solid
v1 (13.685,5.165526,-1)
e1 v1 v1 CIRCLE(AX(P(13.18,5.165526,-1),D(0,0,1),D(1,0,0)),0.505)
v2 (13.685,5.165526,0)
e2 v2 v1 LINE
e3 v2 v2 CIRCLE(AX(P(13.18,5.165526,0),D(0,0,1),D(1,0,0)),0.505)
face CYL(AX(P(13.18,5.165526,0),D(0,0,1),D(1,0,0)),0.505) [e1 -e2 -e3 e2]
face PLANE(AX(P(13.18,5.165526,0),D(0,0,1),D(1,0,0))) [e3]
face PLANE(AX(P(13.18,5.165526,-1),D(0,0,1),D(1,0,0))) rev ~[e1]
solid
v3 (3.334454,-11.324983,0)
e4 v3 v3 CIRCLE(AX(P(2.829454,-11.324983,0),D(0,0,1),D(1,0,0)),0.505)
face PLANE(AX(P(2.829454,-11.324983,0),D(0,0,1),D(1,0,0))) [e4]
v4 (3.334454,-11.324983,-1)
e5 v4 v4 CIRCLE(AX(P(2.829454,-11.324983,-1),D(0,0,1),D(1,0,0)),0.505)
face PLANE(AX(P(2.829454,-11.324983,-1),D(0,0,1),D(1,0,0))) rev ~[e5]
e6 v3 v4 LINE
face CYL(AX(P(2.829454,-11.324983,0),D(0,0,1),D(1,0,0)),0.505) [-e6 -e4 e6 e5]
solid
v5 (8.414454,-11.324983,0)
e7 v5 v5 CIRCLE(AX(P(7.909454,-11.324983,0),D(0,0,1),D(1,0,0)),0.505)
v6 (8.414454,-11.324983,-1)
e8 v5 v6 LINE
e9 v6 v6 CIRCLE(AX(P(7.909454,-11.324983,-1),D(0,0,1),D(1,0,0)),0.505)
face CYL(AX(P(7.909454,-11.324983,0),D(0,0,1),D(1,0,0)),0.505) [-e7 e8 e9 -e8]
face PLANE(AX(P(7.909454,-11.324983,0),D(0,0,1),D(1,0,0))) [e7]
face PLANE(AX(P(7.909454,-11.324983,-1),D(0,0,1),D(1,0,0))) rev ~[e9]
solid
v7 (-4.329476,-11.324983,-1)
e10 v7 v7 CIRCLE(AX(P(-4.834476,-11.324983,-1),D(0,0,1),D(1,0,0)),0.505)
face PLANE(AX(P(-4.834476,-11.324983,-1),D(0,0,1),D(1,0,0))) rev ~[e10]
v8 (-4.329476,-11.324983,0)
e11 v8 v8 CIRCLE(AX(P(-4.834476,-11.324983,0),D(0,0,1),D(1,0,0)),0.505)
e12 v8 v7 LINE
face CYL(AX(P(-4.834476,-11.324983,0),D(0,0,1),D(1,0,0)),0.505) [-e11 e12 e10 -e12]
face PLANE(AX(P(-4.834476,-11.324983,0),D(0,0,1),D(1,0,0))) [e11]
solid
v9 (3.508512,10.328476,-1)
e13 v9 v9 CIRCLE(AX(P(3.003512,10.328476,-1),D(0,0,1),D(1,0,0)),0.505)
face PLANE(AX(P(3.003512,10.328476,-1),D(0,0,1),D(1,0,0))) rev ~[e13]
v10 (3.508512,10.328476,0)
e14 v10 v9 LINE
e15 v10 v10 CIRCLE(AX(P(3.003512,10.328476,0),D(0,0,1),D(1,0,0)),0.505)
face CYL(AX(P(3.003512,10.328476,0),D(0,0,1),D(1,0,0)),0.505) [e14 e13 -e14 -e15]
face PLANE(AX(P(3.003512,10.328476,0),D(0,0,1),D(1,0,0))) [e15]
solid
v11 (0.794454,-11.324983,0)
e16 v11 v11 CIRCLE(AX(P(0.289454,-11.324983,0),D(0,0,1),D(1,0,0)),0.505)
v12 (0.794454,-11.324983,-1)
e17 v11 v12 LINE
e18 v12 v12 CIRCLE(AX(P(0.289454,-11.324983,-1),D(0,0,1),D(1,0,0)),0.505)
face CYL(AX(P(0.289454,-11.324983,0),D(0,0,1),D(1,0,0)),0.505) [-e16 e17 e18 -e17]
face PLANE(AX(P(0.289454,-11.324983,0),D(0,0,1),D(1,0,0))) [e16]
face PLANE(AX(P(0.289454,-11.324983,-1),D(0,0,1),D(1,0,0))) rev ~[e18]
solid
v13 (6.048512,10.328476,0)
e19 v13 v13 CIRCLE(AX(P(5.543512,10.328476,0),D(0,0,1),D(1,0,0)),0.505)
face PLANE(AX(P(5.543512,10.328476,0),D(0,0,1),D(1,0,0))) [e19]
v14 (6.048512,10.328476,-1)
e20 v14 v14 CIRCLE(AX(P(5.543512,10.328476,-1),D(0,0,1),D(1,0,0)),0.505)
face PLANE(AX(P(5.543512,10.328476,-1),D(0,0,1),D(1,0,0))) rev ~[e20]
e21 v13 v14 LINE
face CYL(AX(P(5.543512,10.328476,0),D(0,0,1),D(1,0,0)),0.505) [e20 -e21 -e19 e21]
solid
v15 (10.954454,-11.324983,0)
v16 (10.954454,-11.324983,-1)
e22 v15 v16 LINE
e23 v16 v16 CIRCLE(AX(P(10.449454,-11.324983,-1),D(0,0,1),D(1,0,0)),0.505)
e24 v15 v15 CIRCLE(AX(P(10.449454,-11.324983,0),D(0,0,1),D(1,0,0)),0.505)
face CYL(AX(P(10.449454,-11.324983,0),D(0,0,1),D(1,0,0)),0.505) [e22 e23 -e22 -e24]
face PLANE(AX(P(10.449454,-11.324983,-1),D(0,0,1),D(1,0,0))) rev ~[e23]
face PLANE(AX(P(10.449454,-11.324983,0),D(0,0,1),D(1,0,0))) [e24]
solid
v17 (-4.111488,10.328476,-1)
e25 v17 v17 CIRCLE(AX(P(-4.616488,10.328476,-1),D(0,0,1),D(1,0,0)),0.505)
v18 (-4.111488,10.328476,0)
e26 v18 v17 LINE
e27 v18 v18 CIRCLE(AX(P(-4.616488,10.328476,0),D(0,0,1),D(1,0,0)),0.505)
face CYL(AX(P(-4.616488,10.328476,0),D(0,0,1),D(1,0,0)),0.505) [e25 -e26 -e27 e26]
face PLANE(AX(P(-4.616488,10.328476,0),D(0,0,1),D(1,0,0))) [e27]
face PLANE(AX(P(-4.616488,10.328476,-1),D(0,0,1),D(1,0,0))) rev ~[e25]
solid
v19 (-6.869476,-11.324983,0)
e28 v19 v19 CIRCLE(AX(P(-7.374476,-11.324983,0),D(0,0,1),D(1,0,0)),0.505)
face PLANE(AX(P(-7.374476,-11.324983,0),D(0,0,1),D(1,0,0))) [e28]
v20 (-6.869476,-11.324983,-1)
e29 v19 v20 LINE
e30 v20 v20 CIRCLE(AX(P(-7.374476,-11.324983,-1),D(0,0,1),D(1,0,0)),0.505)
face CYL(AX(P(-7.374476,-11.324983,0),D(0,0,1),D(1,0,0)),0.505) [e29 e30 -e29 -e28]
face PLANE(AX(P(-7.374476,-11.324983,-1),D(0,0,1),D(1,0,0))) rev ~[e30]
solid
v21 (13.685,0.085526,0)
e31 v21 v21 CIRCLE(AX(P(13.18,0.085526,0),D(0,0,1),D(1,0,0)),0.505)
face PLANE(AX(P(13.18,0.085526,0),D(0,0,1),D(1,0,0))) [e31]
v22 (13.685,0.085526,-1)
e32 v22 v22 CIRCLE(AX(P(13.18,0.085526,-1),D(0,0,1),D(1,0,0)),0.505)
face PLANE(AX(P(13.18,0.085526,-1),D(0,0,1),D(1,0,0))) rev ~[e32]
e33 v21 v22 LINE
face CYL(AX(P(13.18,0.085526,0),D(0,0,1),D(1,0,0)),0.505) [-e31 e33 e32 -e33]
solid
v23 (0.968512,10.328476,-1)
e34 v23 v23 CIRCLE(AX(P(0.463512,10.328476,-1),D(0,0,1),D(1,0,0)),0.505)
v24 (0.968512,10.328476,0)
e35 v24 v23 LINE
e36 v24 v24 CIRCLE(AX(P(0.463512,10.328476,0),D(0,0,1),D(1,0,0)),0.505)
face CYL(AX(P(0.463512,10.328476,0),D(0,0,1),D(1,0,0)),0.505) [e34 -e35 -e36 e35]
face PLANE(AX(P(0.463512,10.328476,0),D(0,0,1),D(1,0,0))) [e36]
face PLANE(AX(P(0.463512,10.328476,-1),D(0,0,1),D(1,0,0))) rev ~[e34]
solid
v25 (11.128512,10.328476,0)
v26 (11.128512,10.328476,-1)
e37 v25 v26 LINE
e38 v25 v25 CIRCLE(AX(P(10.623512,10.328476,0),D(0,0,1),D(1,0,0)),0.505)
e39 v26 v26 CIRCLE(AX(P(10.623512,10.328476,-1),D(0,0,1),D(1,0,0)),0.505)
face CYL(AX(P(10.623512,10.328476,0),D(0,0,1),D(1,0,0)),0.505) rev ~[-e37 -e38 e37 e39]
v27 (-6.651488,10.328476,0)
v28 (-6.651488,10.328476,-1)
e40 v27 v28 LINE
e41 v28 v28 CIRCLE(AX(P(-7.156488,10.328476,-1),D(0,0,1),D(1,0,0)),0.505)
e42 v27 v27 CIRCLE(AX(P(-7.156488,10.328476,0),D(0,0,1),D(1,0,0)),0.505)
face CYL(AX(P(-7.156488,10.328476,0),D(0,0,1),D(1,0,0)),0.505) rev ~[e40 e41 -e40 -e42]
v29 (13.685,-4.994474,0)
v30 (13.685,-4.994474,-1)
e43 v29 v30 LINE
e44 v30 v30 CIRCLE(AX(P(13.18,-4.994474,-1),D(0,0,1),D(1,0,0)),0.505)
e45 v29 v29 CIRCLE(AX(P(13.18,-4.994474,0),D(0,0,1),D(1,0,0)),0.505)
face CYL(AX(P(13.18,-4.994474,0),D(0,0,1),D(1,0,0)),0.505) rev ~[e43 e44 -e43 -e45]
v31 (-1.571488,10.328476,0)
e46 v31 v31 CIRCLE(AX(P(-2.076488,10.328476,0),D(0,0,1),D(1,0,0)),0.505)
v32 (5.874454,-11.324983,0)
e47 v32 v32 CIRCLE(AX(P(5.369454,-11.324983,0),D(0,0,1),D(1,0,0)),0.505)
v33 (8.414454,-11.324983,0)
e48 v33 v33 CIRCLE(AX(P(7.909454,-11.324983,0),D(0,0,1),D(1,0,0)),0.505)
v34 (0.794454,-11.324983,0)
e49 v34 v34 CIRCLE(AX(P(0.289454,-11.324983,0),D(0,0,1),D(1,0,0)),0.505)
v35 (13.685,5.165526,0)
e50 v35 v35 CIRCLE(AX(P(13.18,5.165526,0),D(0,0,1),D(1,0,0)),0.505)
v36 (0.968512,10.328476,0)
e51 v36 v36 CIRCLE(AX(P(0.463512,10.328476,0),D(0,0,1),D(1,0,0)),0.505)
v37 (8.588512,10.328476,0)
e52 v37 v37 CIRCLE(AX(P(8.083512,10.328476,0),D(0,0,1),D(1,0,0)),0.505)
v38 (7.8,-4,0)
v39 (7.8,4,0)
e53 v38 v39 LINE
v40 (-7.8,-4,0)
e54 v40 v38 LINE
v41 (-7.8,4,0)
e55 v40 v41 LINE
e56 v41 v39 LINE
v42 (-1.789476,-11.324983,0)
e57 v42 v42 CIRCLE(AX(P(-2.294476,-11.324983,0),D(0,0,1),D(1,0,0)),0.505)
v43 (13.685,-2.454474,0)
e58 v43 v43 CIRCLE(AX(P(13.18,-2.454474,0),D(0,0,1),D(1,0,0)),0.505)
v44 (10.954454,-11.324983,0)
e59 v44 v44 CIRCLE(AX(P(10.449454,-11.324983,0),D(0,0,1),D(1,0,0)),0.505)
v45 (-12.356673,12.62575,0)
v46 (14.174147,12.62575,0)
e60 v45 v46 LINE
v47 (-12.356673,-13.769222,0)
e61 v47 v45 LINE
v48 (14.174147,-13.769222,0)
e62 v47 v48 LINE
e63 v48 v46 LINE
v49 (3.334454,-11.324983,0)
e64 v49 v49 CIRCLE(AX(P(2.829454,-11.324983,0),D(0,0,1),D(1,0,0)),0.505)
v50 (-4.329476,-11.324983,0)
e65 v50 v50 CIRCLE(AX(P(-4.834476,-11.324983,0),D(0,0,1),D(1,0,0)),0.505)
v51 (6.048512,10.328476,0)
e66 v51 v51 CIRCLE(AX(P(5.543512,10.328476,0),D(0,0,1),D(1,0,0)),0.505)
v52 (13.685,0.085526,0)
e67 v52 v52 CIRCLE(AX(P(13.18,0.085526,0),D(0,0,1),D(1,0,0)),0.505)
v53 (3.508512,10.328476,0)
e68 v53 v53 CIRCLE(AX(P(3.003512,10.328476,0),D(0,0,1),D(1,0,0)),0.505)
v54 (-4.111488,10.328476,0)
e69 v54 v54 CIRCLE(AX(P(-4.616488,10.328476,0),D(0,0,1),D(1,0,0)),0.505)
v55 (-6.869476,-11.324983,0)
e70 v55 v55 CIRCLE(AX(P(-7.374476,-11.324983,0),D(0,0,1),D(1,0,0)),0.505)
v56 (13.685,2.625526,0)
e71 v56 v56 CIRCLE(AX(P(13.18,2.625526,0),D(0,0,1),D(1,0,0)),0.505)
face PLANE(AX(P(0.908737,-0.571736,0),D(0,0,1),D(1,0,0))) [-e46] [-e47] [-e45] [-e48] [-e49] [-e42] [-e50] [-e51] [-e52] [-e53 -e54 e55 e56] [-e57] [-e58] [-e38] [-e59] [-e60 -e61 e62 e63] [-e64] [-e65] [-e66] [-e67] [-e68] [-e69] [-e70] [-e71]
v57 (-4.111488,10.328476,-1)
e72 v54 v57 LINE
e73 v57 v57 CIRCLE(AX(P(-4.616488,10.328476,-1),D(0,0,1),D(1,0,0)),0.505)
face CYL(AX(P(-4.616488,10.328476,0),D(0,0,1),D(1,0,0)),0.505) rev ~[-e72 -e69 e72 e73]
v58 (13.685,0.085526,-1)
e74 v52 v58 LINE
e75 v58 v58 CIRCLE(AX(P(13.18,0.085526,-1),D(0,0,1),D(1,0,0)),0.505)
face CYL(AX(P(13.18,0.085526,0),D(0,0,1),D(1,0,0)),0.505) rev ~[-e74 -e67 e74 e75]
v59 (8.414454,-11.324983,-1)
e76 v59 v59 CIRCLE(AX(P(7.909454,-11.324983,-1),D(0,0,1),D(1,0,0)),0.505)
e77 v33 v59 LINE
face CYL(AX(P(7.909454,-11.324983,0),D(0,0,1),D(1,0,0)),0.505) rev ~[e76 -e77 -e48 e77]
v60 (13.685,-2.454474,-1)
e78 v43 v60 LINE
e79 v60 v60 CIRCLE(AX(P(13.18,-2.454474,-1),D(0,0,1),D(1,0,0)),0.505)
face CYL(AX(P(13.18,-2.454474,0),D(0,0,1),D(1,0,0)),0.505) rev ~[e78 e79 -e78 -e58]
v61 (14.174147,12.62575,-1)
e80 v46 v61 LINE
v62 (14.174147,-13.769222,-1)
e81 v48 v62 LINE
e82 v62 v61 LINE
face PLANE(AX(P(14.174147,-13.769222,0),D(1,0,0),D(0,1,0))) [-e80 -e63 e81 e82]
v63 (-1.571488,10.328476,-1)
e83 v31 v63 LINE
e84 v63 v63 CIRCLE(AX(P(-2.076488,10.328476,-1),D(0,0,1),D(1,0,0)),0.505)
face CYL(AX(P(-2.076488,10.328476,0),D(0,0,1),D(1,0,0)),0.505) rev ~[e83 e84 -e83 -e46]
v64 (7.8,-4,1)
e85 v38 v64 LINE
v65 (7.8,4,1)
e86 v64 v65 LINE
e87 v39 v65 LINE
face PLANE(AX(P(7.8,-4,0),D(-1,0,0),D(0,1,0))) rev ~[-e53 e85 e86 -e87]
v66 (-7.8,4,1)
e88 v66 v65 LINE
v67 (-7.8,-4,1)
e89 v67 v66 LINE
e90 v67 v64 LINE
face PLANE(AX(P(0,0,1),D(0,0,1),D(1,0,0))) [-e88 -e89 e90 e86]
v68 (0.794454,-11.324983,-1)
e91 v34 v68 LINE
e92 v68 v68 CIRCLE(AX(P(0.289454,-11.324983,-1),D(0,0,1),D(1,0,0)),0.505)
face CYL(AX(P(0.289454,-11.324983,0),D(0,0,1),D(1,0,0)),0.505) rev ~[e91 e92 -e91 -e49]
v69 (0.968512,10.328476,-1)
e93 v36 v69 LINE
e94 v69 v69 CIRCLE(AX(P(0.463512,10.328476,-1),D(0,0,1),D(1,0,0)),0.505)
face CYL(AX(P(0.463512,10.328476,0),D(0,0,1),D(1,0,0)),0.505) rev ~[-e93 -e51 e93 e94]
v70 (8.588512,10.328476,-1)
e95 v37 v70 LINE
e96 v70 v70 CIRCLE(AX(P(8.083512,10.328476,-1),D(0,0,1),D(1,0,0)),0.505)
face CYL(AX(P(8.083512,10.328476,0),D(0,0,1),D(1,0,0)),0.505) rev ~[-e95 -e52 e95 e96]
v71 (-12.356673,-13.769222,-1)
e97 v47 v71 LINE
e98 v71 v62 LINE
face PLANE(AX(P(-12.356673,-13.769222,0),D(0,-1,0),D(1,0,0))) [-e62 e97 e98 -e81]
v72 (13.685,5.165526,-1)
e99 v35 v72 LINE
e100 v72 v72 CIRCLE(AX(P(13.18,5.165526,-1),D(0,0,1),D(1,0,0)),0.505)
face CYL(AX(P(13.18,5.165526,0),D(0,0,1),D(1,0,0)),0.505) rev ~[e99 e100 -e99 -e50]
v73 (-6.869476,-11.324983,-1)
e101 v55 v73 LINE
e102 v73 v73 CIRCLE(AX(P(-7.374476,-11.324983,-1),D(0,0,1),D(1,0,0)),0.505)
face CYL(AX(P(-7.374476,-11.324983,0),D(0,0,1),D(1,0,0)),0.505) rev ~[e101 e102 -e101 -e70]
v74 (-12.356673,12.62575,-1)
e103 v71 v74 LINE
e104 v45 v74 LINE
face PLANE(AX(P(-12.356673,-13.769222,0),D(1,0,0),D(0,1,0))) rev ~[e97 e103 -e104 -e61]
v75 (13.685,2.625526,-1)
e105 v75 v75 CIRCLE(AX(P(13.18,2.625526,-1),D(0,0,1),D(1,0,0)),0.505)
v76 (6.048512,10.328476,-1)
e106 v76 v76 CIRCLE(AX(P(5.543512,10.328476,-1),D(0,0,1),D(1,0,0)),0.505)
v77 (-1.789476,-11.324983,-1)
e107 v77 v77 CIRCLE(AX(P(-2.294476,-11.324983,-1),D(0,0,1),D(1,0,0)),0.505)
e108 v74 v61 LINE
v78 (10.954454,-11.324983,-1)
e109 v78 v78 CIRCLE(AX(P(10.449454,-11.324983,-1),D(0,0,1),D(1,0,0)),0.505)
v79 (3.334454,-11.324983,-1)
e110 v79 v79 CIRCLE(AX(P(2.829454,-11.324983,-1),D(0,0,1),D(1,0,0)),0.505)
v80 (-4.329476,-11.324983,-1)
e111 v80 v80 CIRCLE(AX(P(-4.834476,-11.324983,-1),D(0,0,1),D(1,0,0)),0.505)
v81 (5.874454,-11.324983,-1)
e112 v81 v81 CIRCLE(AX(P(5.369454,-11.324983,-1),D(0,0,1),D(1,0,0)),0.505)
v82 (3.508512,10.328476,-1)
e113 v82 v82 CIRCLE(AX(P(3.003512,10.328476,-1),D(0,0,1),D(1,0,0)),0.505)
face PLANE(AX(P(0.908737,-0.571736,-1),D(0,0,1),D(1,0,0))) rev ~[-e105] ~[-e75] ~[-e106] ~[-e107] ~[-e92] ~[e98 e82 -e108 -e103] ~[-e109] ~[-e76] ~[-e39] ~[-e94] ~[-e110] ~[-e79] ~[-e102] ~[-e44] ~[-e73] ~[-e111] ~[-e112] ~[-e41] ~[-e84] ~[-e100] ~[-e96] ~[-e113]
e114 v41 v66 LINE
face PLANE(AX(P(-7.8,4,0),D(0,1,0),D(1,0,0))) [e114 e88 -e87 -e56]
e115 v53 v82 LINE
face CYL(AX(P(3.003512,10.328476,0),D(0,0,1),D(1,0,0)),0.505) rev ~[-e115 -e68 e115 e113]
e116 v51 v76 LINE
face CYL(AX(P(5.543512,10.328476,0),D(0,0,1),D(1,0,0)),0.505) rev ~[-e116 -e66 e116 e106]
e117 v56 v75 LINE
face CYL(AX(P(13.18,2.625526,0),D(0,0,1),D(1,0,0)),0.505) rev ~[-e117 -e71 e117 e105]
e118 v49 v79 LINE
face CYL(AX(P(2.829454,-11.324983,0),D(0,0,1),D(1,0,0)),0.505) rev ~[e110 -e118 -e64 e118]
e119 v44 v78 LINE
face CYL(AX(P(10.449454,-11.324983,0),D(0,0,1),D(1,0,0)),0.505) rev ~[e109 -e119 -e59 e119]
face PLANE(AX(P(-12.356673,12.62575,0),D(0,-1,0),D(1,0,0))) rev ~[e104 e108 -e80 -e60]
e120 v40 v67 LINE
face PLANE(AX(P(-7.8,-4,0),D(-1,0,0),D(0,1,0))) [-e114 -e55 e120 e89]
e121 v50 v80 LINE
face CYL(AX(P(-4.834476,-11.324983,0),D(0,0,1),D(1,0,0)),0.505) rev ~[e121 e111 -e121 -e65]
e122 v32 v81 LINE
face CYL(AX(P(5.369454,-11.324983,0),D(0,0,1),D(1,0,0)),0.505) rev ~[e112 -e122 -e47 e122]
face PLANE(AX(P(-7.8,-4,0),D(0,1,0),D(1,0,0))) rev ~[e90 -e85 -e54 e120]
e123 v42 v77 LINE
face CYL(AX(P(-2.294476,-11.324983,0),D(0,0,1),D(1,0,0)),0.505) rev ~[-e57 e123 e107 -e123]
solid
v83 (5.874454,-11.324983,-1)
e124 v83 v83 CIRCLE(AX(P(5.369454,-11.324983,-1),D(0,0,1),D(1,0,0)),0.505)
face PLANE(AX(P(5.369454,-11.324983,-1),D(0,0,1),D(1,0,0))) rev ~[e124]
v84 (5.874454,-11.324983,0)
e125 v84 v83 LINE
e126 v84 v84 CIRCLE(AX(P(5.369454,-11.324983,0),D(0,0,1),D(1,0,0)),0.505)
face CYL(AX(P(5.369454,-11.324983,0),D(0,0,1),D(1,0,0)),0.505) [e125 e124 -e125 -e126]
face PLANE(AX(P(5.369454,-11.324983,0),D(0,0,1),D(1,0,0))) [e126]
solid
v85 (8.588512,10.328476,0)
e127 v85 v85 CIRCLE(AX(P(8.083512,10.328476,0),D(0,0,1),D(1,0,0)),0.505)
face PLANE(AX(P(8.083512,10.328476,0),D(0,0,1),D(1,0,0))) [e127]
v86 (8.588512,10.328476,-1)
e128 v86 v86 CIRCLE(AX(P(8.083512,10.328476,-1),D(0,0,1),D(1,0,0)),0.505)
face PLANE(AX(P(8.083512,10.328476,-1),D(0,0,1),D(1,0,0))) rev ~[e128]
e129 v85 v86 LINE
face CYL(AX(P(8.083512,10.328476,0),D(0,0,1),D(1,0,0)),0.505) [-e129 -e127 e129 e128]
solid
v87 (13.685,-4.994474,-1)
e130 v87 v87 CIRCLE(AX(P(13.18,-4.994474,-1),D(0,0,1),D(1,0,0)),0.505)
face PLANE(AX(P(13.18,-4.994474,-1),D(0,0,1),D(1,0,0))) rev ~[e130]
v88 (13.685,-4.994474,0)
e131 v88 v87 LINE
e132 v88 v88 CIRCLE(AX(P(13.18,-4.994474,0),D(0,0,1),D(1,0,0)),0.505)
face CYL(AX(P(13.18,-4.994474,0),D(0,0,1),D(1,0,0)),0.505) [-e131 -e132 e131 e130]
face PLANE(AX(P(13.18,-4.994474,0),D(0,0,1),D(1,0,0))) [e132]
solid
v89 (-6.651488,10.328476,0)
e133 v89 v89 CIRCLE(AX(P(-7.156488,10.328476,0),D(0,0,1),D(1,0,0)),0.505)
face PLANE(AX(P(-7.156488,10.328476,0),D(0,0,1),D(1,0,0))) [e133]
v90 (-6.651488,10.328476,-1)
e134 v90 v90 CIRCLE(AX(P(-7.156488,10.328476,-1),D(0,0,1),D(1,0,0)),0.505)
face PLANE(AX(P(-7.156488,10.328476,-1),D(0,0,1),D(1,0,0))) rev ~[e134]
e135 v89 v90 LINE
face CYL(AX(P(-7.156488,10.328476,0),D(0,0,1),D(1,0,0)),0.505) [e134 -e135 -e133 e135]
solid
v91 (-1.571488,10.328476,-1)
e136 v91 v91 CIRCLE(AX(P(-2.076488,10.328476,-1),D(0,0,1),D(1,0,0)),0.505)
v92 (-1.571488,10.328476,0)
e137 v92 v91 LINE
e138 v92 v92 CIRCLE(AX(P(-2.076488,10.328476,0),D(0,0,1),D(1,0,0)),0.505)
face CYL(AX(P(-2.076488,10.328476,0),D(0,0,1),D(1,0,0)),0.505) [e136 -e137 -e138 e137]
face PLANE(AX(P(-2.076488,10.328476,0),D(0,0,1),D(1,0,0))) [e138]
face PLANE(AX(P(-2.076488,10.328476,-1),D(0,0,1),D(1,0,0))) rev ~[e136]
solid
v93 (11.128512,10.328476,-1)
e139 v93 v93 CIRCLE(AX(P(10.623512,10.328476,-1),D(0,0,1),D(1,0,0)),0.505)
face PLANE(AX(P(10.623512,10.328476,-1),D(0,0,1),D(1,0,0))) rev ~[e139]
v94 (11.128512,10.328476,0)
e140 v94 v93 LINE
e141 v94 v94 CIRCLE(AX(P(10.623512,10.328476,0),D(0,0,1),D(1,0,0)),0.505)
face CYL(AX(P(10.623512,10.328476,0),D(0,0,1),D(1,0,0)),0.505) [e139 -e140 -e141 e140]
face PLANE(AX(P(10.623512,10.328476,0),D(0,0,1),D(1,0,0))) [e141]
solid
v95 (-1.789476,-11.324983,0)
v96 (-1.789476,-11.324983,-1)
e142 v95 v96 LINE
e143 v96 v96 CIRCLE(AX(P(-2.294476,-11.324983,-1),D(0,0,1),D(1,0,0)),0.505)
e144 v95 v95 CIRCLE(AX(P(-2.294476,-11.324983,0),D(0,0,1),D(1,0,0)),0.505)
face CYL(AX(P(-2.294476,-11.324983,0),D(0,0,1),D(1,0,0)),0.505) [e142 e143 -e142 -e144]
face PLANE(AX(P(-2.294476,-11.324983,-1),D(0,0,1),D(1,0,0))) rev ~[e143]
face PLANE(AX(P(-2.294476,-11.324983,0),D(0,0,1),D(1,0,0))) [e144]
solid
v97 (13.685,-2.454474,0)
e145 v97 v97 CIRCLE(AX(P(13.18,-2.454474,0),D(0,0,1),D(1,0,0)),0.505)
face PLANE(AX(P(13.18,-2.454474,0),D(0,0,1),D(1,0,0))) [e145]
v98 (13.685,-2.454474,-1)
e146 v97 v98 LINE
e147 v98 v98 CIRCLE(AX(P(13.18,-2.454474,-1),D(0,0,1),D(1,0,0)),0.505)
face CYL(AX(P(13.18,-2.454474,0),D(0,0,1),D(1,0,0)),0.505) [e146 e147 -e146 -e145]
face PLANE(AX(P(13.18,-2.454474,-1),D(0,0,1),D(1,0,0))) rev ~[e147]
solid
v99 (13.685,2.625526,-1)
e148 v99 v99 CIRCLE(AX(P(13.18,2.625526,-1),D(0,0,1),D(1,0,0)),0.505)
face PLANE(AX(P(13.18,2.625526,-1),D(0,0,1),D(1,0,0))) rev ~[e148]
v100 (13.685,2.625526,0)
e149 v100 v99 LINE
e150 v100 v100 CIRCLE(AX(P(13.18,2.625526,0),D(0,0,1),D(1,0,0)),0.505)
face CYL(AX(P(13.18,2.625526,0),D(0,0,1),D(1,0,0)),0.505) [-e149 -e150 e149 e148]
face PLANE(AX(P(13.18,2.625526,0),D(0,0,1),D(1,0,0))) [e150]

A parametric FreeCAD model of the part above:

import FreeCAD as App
import Part
import Sketcher

V = App.Vector
Q = App.Units.Quantity

doc = App.newDocument("Part")
body = doc.addObject("PartDesign::Body", "Body")

# Sketch on XY plane
sketch1 = body.newObject("Sketcher::SketchObject", "Sketch")
sketch1.AttachmentSupport = (doc.getObject("XY_Plane"), [""])
sketch1.MapMode = "FlatFace"
sketch1.addGeometry(Part.LineSegment(V(-12, 13, 0), V(-12, -14, 0)), False)
sketch1.addGeometry(Part.LineSegment(V(-12, -14, 0), V(14, -14, 0)), False)
sketch1.addGeometry(Part.LineSegment(V(14, -14, 0), V(14, 13, 0)), False)
sketch1.addGeometry(Part.LineSegment(V(14, 13, 0), V(-12, 13, 0)), False)
sketch1.addConstraint(Sketcher.Constraint("Coincident", 0, 2, 1, 1))
sketch1.addConstraint(Sketcher.Constraint("Coincident", 1, 2, 2, 1))
sketch1.addConstraint(Sketcher.Constraint("Coincident", 2, 2, 3, 1))
sketch1.addConstraint(Sketcher.Constraint("Coincident", 3, 2, 0, 1))
sketch1.addConstraint(Sketcher.Constraint("Vertical", 0))
sketch1.addConstraint(Sketcher.Constraint("Horizontal", 1))
sketch1.addConstraint(Sketcher.Constraint("Vertical", 2))
sketch1.addConstraint(Sketcher.Constraint("Horizontal", 3))
sketch1.addConstraint(Sketcher.Constraint("DistanceX", 1, 1, 1, 2, Q("26.530821 mm")))
sketch1.addConstraint(Sketcher.Constraint("DistanceY", 0, 2, 0, 1, Q("26.394973 mm")))
sketch1.addConstraint(Sketcher.Constraint("DistanceY", -1, 1, 2, 2, Q("12.62575 mm")))
sketch1.addConstraint(Sketcher.Constraint("DistanceX", 0, 2, -1, 1, Q("12.356673 mm")))
pad1 = body.newObject("PartDesign::Pad", "Pad")
pad1.Profile = sketch1
pad1.Length = 1
pad1.Reversed = True

# Sketch on XY plane
sketch2 = body.newObject("Sketcher::SketchObject", "Sketch001")
sketch2.AttachmentSupport = (doc.getObject("XY_Plane"), [""])
sketch2.MapMode = "FlatFace"
sketch2.addGeometry(Part.Circle(V(-7.2, 10.3, 0), V(0, 0, 1), 0.5), False)
sketch2.addGeometry(Part.Circle(V(-4.6, 10.3, 0), V(0, 0, 1), 0.5), False)
sketch2.addGeometry(Part.Circle(V(-2.1, 10.3, 0), V(0, 0, 1), 0.5), False)
sketch2.addGeometry(Part.Circle(V(0.5, 10.3, 0), V(0, 0, 1), 0.5), False)
sketch2.addGeometry(Part.Circle(V(3, 10.3, 0), V(0, 0, 1), 0.5), False)
sketch2.addGeometry(Part.Circle(V(5.5, 10.3, 0), V(0, 0, 1), 0.5), False)
sketch2.addGeometry(Part.Circle(V(8.1, 10.3, 0), V(0, 0, 1), 0.5), False)
sketch2.addGeometry(Part.Circle(V(10.6, 10.3, 0), V(0, 0, 1), 0.5), False)
sketch2.addGeometry(Part.Circle(V(13.2, 5.2, 0), V(0, 0, 1), 0.5), False)
sketch2.addGeometry(Part.Circle(V(13.2, 0.1, 0), V(0, 0, 1), 0.5), False)
sketch2.addGeometry(Part.Circle(V(13.2, -2.5, 0), V(0, 0, 1), 0.5), False)
sketch2.addGeometry(Part.Circle(V(13.2, -5, 0), V(0, 0, 1), 0.5), False)
sketch2.addGeometry(Part.Circle(V(10.4, -11.3, 0), V(0, 0, 1), 0.5), False)
sketch2.addGeometry(Part.Circle(V(7.9, -11.3, 0), V(0, 0, 1), 0.5), False)
sketch2.addGeometry(Part.Circle(V(5.4, -11.3, 0), V(0, 0, 1), 0.5), False)
sketch2.addGeometry(Part.Circle(V(2.8, -11.3, 0), V(0, 0, 1), 0.5), False)
sketch2.addGeometry(Part.Circle(V(0.3, -11.3, 0), V(0, 0, 1), 0.5), False)
sketch2.addGeometry(Part.Circle(V(-4.8, -11.3, 0), V(0, 0, 1), 0.5), False)
sketch2.addGeometry(Part.Circle(V(-7.4, -11.3, 0), V(0, 0, 1), 0.5), False)
sketch2.addGeometry(Part.Circle(V(13.2, 2.6, 0), V(0, 0, 1), 0.5), False)
sketch2.addGeometry(Part.Circle(V(-2.3, -11.3, 0), V(0, 0, 1), 0.5), False)
sketch2.addConstraint(Sketcher.Constraint("Equal", 0, 1))
sketch2.addConstraint(Sketcher.Constraint("Equal", 1, 2))
sketch2.addConstraint(Sketcher.Constraint("Equal", 2, 3))
sketch2.addConstraint(Sketcher.Constraint("Equal", 3, 4))
sketch2.addConstraint(Sketcher.Constraint("Equal", 4, 5))
sketch2.addConstraint(Sketcher.Constraint("Equal", 5, 6))
sketch2.addConstraint(Sketcher.Constraint("Equal", 6, 7))
sketch2.addConstraint(Sketcher.Constraint("Equal", 7, 8))
sketch2.addConstraint(Sketcher.Constraint("Equal", 8, 9))
sketch2.addConstraint(Sketcher.Constraint("Equal", 9, 10))
sketch2.addConstraint(Sketcher.Constraint("Equal", 10, 11))
sketch2.addConstraint(Sketcher.Constraint("Equal", 11, 12))
sketch2.addConstraint(Sketcher.Constraint("Equal", 12, 13))
sketch2.addConstraint(Sketcher.Constraint("Equal", 13, 14))
sketch2.addConstraint(Sketcher.Constraint("Equal", 14, 15))
sketch2.addConstraint(Sketcher.Constraint("Equal", 15, 16))
sketch2.addConstraint(Sketcher.Constraint("Equal", 16, 17))
sketch2.addConstraint(Sketcher.Constraint("Equal", 17, 18))
sketch2.addConstraint(Sketcher.Constraint("Equal", 18, 19))
sketch2.addConstraint(Sketcher.Constraint("Equal", 19, 20))
sketch2.addConstraint(Sketcher.Constraint("Horizontal", 0, 3, 1, 3))
sketch2.addConstraint(Sketcher.Constraint("Horizontal", 1, 3, 2, 3))
sketch2.addConstraint(Sketcher.Constraint("Horizontal", 2, 3, 3, 3))
sketch2.addConstraint(Sketcher.Constraint("Horizontal", 3, 3, 4, 3))
sketch2.addConstraint(Sketcher.Constraint("Horizontal", 4, 3, 5, 3))
sketch2.addConstraint(Sketcher.Constraint("Horizontal", 5, 3, 6, 3))
sketch2.addConstraint(Sketcher.Constraint("Horizontal", 6, 3, 7, 3))
sketch2.addConstraint(Sketcher.Constraint("Horizontal", 12, 3, 13, 3))
sketch2.addConstraint(Sketcher.Constraint("Horizontal", 13, 3, 14, 3))
sketch2.addConstraint(Sketcher.Constraint("Horizontal", 14, 3, 15, 3))
sketch2.addConstraint(Sketcher.Constraint("Horizontal", 15, 3, 16, 3))
sketch2.addConstraint(Sketcher.Constraint("Horizontal", 16, 3, 17, 3))
sketch2.addConstraint(Sketcher.Constraint("Horizontal", 17, 3, 18, 3))
sketch2.addConstraint(Sketcher.Constraint("Horizontal", 18, 3, 20, 3))
sketch2.addConstraint(Sketcher.Constraint("Vertical", 8, 3, 9, 3))
sketch2.addConstraint(Sketcher.Constraint("Vertical", 9, 3, 10, 3))
sketch2.addConstraint(Sketcher.Constraint("Vertical", 10, 3, 11, 3))
sketch2.addConstraint(Sketcher.Constraint("Vertical", 11, 3, 19, 3))
sketch2.addConstraint(Sketcher.Constraint("Diameter", 0, Q("1.01 mm")))
sketch2.addConstraint(Sketcher.Constraint("DistanceX", 0, 3, 5, 3, Q("12.7 mm")))
sketch2.addConstraint(Sketcher.Constraint("DistanceX", 1, 3, 6, 3, Q("12.7 mm")))
sketch2.addConstraint(Sketcher.Constraint("DistanceX", 2, 3, 7, 3, Q("12.7 mm")))
sketch2.addConstraint(Sketcher.Constraint("DistanceX", -1, 1, 8, 3, Q("13.18 mm")))
sketch2.addConstraint(Sketcher.Constraint("DistanceX", 0, 3, 1, 3, Q("2.54 mm")))
sketch2.addConstraint(Sketcher.Constraint("DistanceX", 1, 3, 2, 3, Q("2.54 mm")))
sketch2.addConstraint(Sketcher.Constraint("DistanceX", 2, 3, 3, 3, Q("2.54 mm")))
sketch2.addConstraint(Sketcher.Constraint("DistanceX", 3, 3, 4, 3, Q("2.54 mm")))
sketch2.addConstraint(Sketcher.Constraint("DistanceY", 9, 3, 8, 3, Q("5.08 mm")))
sketch2.addConstraint(Sketcher.Constraint("DistanceY", 10, 3, 9, 3, Q("2.54 mm")))
sketch2.addConstraint(Sketcher.Constraint("DistanceY", 11, 3, 10, 3, Q("2.54 mm")))
sketch2.addConstraint(Sketcher.Constraint("DistanceX", 13, 3, 12, 3, Q("2.54 mm")))
sketch2.addConstraint(Sketcher.Constraint("DistanceX", 14, 3, 13, 3, Q("2.54 mm")))
sketch2.addConstraint(Sketcher.Constraint("DistanceX", 15, 3, 14, 3, Q("2.54 mm")))
sketch2.addConstraint(Sketcher.Constraint("DistanceX", 16, 3, 15, 3, Q("2.54 mm")))
sketch2.addConstraint(Sketcher.Constraint("DistanceX", 18, 3, 17, 3, Q("2.54 mm")))
sketch2.addConstraint(Sketcher.Constraint("DistanceY", 19, 3, 8, 3, Q("2.54 mm")))
sketch2.addConstraint(Sketcher.Constraint("DistanceX", 17, 3, 20, 3, Q("2.54 mm")))
sketch2.addConstraint(Sketcher.Constraint("DistanceX", 0, 3, -1, 1, Q("7.156488 mm")))
sketch2.addConstraint(Sketcher.Constraint("DistanceY", 8, 3, 7, 3, Q("5.16295 mm")))
sketch2.addConstraint(Sketcher.Constraint("DistanceY", 12, 3, 11, 3, Q("6.330509 mm")))
sketch2.addConstraint(Sketcher.Constraint("DistanceX", 17, 3, 16, 3, Q("5.12393 mm")))
sketch2.addConstraint(Sketcher.Constraint("DistanceY", -1, 1, 0, 3, Q("10.328476 mm")))
sketch2.addConstraint(Sketcher.Constraint("DistanceX", -1, 1, 12, 3, Q("10.449454 mm")))
pocket1 = body.newObject("PartDesign::Pocket", "Pocket")
pocket1.Profile = sketch2
pocket1.Length = 1

# Sketch on XY plane
sketch3 = body.newObject("Sketcher::SketchObject", "Sketch002")
sketch3.AttachmentSupport = (doc.getObject("XY_Plane"), [""])
sketch3.MapMode = "FlatFace"
sketch3.addGeometry(Part.LineSegment(V(-8, 4, 0), V(-8, -4, 0)), False)
sketch3.addGeometry(Part.LineSegment(V(-8, -4, 0), V(8, -4, 0)), False)
sketch3.addGeometry(Part.LineSegment(V(8, -4, 0), V(8, 4, 0)), False)
sketch3.addGeometry(Part.LineSegment(V(8, 4, 0), V(-8, 4, 0)), False)
sketch3.addConstraint(Sketcher.Constraint("Coincident", 0, 2, 1, 1))
sketch3.addConstraint(Sketcher.Constraint("Coincident", 1, 2, 2, 1))
sketch3.addConstraint(Sketcher.Constraint("Coincident", 2, 2, 3, 1))
sketch3.addConstraint(Sketcher.Constraint("Coincident", 3, 2, 0, 1))
sketch3.addConstraint(Sketcher.Constraint("Vertical", 0))
sketch3.addConstraint(Sketcher.Constraint("Horizontal", 1))
sketch3.addConstraint(Sketcher.Constraint("Vertical", 2))
sketch3.addConstraint(Sketcher.Constraint("Horizontal", 3))
sketch3.addConstraint(Sketcher.Constraint("Symmetric", 0, 2, 2, 2, -1, 1))
sketch3.addConstraint(Sketcher.Constraint("DistanceY", 0, 2, 0, 1, Q("8 mm")))
sketch3.addConstraint(Sketcher.Constraint("DistanceX", 1, 1, 1, 2, Q("15.6 mm")))
pad2 = body.newObject("PartDesign::Pad", "Pad001")
pad2.Profile = sketch3
pad2.Length = 1
body2 = doc.addObject("PartDesign::Body", "Body001")

# Sketch on XY plane
sketch4 = body2.newObject("Sketcher::SketchObject", "Sketch003")
sketch4.AttachmentSupport = (doc.getObject("XY_Plane001"), [""])
sketch4.MapMode = "FlatFace"
sketch4.addGeometry(Part.Circle(V(-7.2, 10.3, 0), V(0, 0, 1), 0.5), False)
sketch4.addConstraint(Sketcher.Constraint("Diameter", 0, Q("1.01 mm")))
sketch4.addConstraint(Sketcher.Constraint("DistanceX", 0, 3, -1, 1, Q("7.156488 mm")))
sketch4.addConstraint(Sketcher.Constraint("DistanceY", -1, 1, 0, 3, Q("10.328476 mm")))
pad3 = body2.newObject("PartDesign::Pad", "Pad002")
pad3.Profile = sketch4
pad3.Length = 1
pad3.Reversed = True
body3 = doc.addObject("PartDesign::Body", "Body002")

# Sketch on XY plane
sketch5 = body3.newObject("Sketcher::SketchObject", "Sketch004")
sketch5.AttachmentSupport = (doc.getObject("XY_Plane002"), [""])
sketch5.MapMode = "FlatFace"
sketch5.addGeometry(Part.Circle(V(-4.6, 10.3, 0), V(0, 0, 1), 0.5), False)
sketch5.addConstraint(Sketcher.Constraint("Diameter", 0, Q("1.01 mm")))
sketch5.addConstraint(Sketcher.Constraint("DistanceX", 0, 3, -1, 1, Q("4.616488 mm")))
sketch5.addConstraint(Sketcher.Constraint("DistanceY", -1, 1, 0, 3, Q("10.328476 mm")))
pad4 = body3.newObject("PartDesign::Pad", "Pad003")
pad4.Profile = sketch5
pad4.Length = 1
pad4.Reversed = True
body4 = doc.addObject("PartDesign::Body", "Body003")

# Sketch on XY plane
sketch6 = body4.newObject("Sketcher::SketchObject", "Sketch005")
sketch6.AttachmentSupport = (doc.getObject("XY_Plane003"), [""])
sketch6.MapMode = "FlatFace"
sketch6.addGeometry(Part.Circle(V(0.5, 10.3, 0), V(0, 0, 1), 0.5), False)
sketch6.addConstraint(Sketcher.Constraint("Diameter", 0, Q("1.01 mm")))
sketch6.addConstraint(Sketcher.Constraint("DistanceX", -1, 1, 0, 3, Q("0.463512 mm")))
sketch6.addConstraint(Sketcher.Constraint("DistanceY", -1, 1, 0, 3, Q("10.328476 mm")))
pad5 = body4.newObject("PartDesign::Pad", "Pad004")
pad5.Profile = sketch6
pad5.Length = 1
pad5.Reversed = True
body5 = doc.addObject("PartDesign::Body", "Body004")

# Sketch on XY plane
sketch7 = body5.newObject("Sketcher::SketchObject", "Sketch006")
sketch7.AttachmentSupport = (doc.getObject("XY_Plane004"), [""])
sketch7.MapMode = "FlatFace"
sketch7.addGeometry(Part.Circle(V(3, 10.3, 0), V(0, 0, 1), 0.5), False)
sketch7.addConstraint(Sketcher.Constraint("Diameter", 0, Q("1.01 mm")))
sketch7.addConstraint(Sketcher.Constraint("DistanceX", -1, 1, 0, 3, Q("3.003512 mm")))
sketch7.addConstraint(Sketcher.Constraint("DistanceY", -1, 1, 0, 3, Q("10.328476 mm")))
pad6 = body5.newObject("PartDesign::Pad", "Pad005")
pad6.Profile = sketch7
pad6.Length = 1
pad6.Reversed = True
body6 = doc.addObject("PartDesign::Body", "Body005")

# Sketch on XY plane
sketch8 = body6.newObject("Sketcher::SketchObject", "Sketch007")
sketch8.AttachmentSupport = (doc.getObject("XY_Plane005"), [""])
sketch8.MapMode = "FlatFace"
sketch8.addGeometry(Part.Circle(V(5.5, 10.3, 0), V(0, 0, 1), 0.5), False)
sketch8.addConstraint(Sketcher.Constraint("Diameter", 0, Q("1.01 mm")))
sketch8.addConstraint(Sketcher.Constraint("DistanceX", -1, 1, 0, 3, Q("5.543512 mm")))
sketch8.addConstraint(Sketcher.Constraint("DistanceY", -1, 1, 0, 3, Q("10.328476 mm")))
pad7 = body6.newObject("PartDesign::Pad", "Pad006")
pad7.Profile = sketch8
pad7.Length = 1
pad7.Reversed = True
body7 = doc.addObject("PartDesign::Body", "Body006")

# Sketch on XY plane
sketch9 = body7.newObject("Sketcher::SketchObject", "Sketch008")
sketch9.AttachmentSupport = (doc.getObject("XY_Plane006"), [""])
sketch9.MapMode = "FlatFace"
sketch9.addGeometry(Part.Circle(V(8.1, 10.3, 0), V(0, 0, 1), 0.5), False)
sketch9.addConstraint(Sketcher.Constraint("Diameter", 0, Q("1.01 mm")))
sketch9.addConstraint(Sketcher.Constraint("DistanceX", -1, 1, 0, 3, Q("8.083512 mm")))
sketch9.addConstraint(Sketcher.Constraint("DistanceY", -1, 1, 0, 3, Q("10.328476 mm")))
pad8 = body7.newObject("PartDesign::Pad", "Pad007")
pad8.Profile = sketch9
pad8.Length = 1
pad8.Reversed = True
body8 = doc.addObject("PartDesign::Body", "Body007")

# Sketch on XY plane
sketch10 = body8.newObject("Sketcher::SketchObject", "Sketch009")
sketch10.AttachmentSupport = (doc.getObject("XY_Plane007"), [""])
sketch10.MapMode = "FlatFace"
sketch10.addGeometry(Part.Circle(V(10.6, 10.3, 0), V(0, 0, 1), 0.5), False)
sketch10.addConstraint(Sketcher.Constraint("Diameter", 0, Q("1.01 mm")))
sketch10.addConstraint(Sketcher.Constraint("DistanceX", -1, 1, 0, 3, Q("10.623512 mm")))
sketch10.addConstraint(Sketcher.Constraint("DistanceY", -1, 1, 0, 3, Q("10.328476 mm")))
pad9 = body8.newObject("PartDesign::Pad", "Pad008")
pad9.Profile = sketch10
pad9.Length = 1
pad9.Reversed = True
body9 = doc.addObject("PartDesign::Body", "Body008")

# Sketch on XY plane
sketch11 = body9.newObject("Sketcher::SketchObject", "Sketch010")
sketch11.AttachmentSupport = (doc.getObject("XY_Plane008"), [""])
sketch11.MapMode = "FlatFace"
sketch11.addGeometry(Part.Circle(V(13.2, 5.2, 0), V(0, 0, 1), 0.5), False)
sketch11.addConstraint(Sketcher.Constraint("Diameter", 0, Q("1.01 mm")))
sketch11.addConstraint(Sketcher.Constraint("DistanceX", -1, 1, 0, 3, Q("13.18 mm")))
sketch11.addConstraint(Sketcher.Constraint("DistanceY", -1, 1, 0, 3, Q("5.165526 mm")))
pad10 = body9.newObject("PartDesign::Pad", "Pad009")
pad10.Profile = sketch11
pad10.Length = 1
pad10.Reversed = True
body10 = doc.addObject("PartDesign::Body", "Body009")

# Sketch on XY plane
sketch12 = body10.newObject("Sketcher::SketchObject", "Sketch011")
sketch12.AttachmentSupport = (doc.getObject("XY_Plane009"), [""])
sketch12.MapMode = "FlatFace"
sketch12.addGeometry(Part.Circle(V(13.2, -2.5, 0), V(0, 0, 1), 0.5), False)
sketch12.addConstraint(Sketcher.Constraint("Diameter", 0, Q("1.01 mm")))
sketch12.addConstraint(Sketcher.Constraint("DistanceX", -1, 1, 0, 3, Q("13.18 mm")))
sketch12.addConstraint(Sketcher.Constraint("DistanceY", 0, 3, -1, 1, Q("2.454474 mm")))
pad11 = body10.newObject("PartDesign::Pad", "Pad010")
pad11.Profile = sketch12
pad11.Length = 1
pad11.Reversed = True
body11 = doc.addObject("PartDesign::Body", "Body010")

# Sketch on XY plane
sketch13 = body11.newObject("Sketcher::SketchObject", "Sketch012")
sketch13.AttachmentSupport = (doc.getObject("XY_Plane010"), [""])
sketch13.MapMode = "FlatFace"
sketch13.addGeometry(Part.Circle(V(13.2, -5, 0), V(0, 0, 1), 0.5), False)
sketch13.addConstraint(Sketcher.Constraint("Diameter", 0, Q("1.01 mm")))
sketch13.addConstraint(Sketcher.Constraint("DistanceX", -1, 1, 0, 3, Q("13.18 mm")))
sketch13.addConstraint(Sketcher.Constraint("DistanceY", 0, 3, -1, 1, Q("4.994474 mm")))
pad12 = body11.newObject("PartDesign::Pad", "Pad011")
pad12.Profile = sketch13
pad12.Length = 1
pad12.Reversed = True
body12 = doc.addObject("PartDesign::Body", "Body011")

# Sketch on XY plane
sketch14 = body12.newObject("Sketcher::SketchObject", "Sketch013")
sketch14.AttachmentSupport = (doc.getObject("XY_Plane011"), [""])
sketch14.MapMode = "FlatFace"
sketch14.addGeometry(Part.Circle(V(-7.4, -11.3, 0), V(0, 0, 1), 0.5), False)
sketch14.addConstraint(Sketcher.Constraint("Diameter", 0, Q("1.01 mm")))
sketch14.addConstraint(Sketcher.Constraint("DistanceX", 0, 3, -1, 1, Q("7.374476 mm")))
sketch14.addConstraint(Sketcher.Constraint("DistanceY", 0, 3, -1, 1, Q("11.324983 mm")))
pad13 = body12.newObject("PartDesign::Pad", "Pad012")
pad13.Profile = sketch14
pad13.Length = 1
pad13.Reversed = True
body13 = doc.addObject("PartDesign::Body", "Body012")

# Sketch on XY plane
sketch15 = body13.newObject("Sketcher::SketchObject", "Sketch014")
sketch15.AttachmentSupport = (doc.getObject("XY_Plane012"), [""])
sketch15.MapMode = "FlatFace"
sketch15.addGeometry(Part.Circle(V(-2.3, -11.3, 0), V(0, 0, 1), 0.5), False)
sketch15.addConstraint(Sketcher.Constraint("Diameter", 0, Q("1.01 mm")))
sketch15.addConstraint(Sketcher.Constraint("DistanceX", 0, 3, -1, 1, Q("2.294476 mm")))
sketch15.addConstraint(Sketcher.Constraint("DistanceY", 0, 3, -1, 1, Q("11.324983 mm")))
pad14 = body13.newObject("PartDesign::Pad", "Pad013")
pad14.Profile = sketch15
pad14.Length = 1
pad14.Reversed = True
body14 = doc.addObject("PartDesign::Body", "Body013")

# Sketch on XY plane
sketch16 = body14.newObject("Sketcher::SketchObject", "Sketch015")
sketch16.AttachmentSupport = (doc.getObject("XY_Plane013"), [""])
sketch16.MapMode = "FlatFace"
sketch16.addGeometry(Part.Circle(V(0.3, -11.3, 0), V(0, 0, 1), 0.5), False)
sketch16.addConstraint(Sketcher.Constraint("Diameter", 0, Q("1.01 mm")))
sketch16.addConstraint(Sketcher.Constraint("DistanceX", -1, 1, 0, 3, Q("0.289454 mm")))
sketch16.addConstraint(Sketcher.Constraint("DistanceY", 0, 3, -1, 1, Q("11.324983 mm")))
pad15 = body14.newObject("PartDesign::Pad", "Pad014")
pad15.Profile = sketch16
pad15.Length = 1
pad15.Reversed = True
body15 = doc.addObject("PartDesign::Body", "Body014")

# Sketch on XY plane
sketch17 = body15.newObject("Sketcher::SketchObject", "Sketch016")
sketch17.AttachmentSupport = (doc.getObject("XY_Plane014"), [""])
sketch17.MapMode = "FlatFace"
sketch17.addGeometry(Part.Circle(V(2.8, -11.3, 0), V(0, 0, 1), 0.5), False)
sketch17.addConstraint(Sketcher.Constraint("Diameter", 0, Q("1.01 mm")))
sketch17.addConstraint(Sketcher.Constraint("DistanceX", -1, 1, 0, 3, Q("2.829454 mm")))
sketch17.addConstraint(Sketcher.Constraint("DistanceY", 0, 3, -1, 1, Q("11.324983 mm")))
pad16 = body15.newObject("PartDesign::Pad", "Pad015")
pad16.Profile = sketch17
pad16.Length = 1
pad16.Reversed = True
body16 = doc.addObject("PartDesign::Body", "Body015")

# Sketch on XY plane
sketch18 = body16.newObject("Sketcher::SketchObject", "Sketch017")
sketch18.AttachmentSupport = (doc.getObject("XY_Plane015"), [""])
sketch18.MapMode = "FlatFace"
sketch18.addGeometry(Part.Circle(V(7.9, -11.3, 0), V(0, 0, 1), 0.5), False)
sketch18.addConstraint(Sketcher.Constraint("Diameter", 0, Q("1.01 mm")))
sketch18.addConstraint(Sketcher.Constraint("DistanceX", -1, 1, 0, 3, Q("7.909454 mm")))
sketch18.addConstraint(Sketcher.Constraint("DistanceY", 0, 3, -1, 1, Q("11.324983 mm")))
pad17 = body16.newObject("PartDesign::Pad", "Pad016")
pad17.Profile = sketch18
pad17.Length = 1
pad17.Reversed = True
body17 = doc.addObject("PartDesign::Body", "Body016")

# Sketch on XY plane
sketch19 = body17.newObject("Sketcher::SketchObject", "Sketch018")
sketch19.AttachmentSupport = (doc.getObject("XY_Plane016"), [""])
sketch19.MapMode = "FlatFace"
sketch19.addGeometry(Part.Circle(V(10.4, -11.3, 0), V(0, 0, 1), 0.5), False)
sketch19.addConstraint(Sketcher.Constraint("Diameter", 0, Q("1.01 mm")))
sketch19.addConstraint(Sketcher.Constraint("DistanceX", -1, 1, 0, 3, Q("10.449454 mm")))
sketch19.addConstraint(Sketcher.Constraint("DistanceY", 0, 3, -1, 1, Q("11.324983 mm")))
pad18 = body17.newObject("PartDesign::Pad", "Pad017")
pad18.Profile = sketch19
pad18.Length = 1
pad18.Reversed = True
body18 = doc.addObject("PartDesign::Body", "Body017")

# Sketch on XY plane
sketch20 = body18.newObject("Sketcher::SketchObject", "Sketch019")
sketch20.AttachmentSupport = (doc.getObject("XY_Plane017"), [""])
sketch20.MapMode = "FlatFace"
sketch20.addGeometry(Part.Circle(V(-2.1, 10.3, 0), V(0, 0, 1), 0.5), False)
sketch20.addConstraint(Sketcher.Constraint("Diameter", 0, Q("1.01 mm")))
sketch20.addConstraint(Sketcher.Constraint("DistanceX", 0, 3, -1, 1, Q("2.076488 mm")))
sketch20.addConstraint(Sketcher.Constraint("DistanceY", -1, 1, 0, 3, Q("10.328476 mm")))
pad19 = body18.newObject("PartDesign::Pad", "Pad018")
pad19.Profile = sketch20
pad19.Length = 1
pad19.Reversed = True
body19 = doc.addObject("PartDesign::Body", "Body018")

# Sketch on XY plane
sketch21 = body19.newObject("Sketcher::SketchObject", "Sketch020")
sketch21.AttachmentSupport = (doc.getObject("XY_Plane018"), [""])
sketch21.MapMode = "FlatFace"
sketch21.addGeometry(Part.Circle(V(13.2, 2.6, 0), V(0, 0, 1), 0.5), False)
sketch21.addConstraint(Sketcher.Constraint("Diameter", 0, Q("1.01 mm")))
sketch21.addConstraint(Sketcher.Constraint("DistanceX", -1, 1, 0, 3, Q("13.18 mm")))
sketch21.addConstraint(Sketcher.Constraint("DistanceY", -1, 1, 0, 3, Q("2.625526 mm")))
pad20 = body19.newObject("PartDesign::Pad", "Pad019")
pad20.Profile = sketch21
pad20.Length = 1
pad20.Reversed = True
body20 = doc.addObject("PartDesign::Body", "Body019")

# Sketch on XY plane
sketch22 = body20.newObject("Sketcher::SketchObject", "Sketch021")
sketch22.AttachmentSupport = (doc.getObject("XY_Plane019"), [""])
sketch22.MapMode = "FlatFace"
sketch22.addGeometry(Part.Circle(V(13.2, 0.1, 0), V(0, 0, 1), 0.5), False)
sketch22.addConstraint(Sketcher.Constraint("Diameter", 0, Q("1.01 mm")))
sketch22.addConstraint(Sketcher.Constraint("DistanceX", -1, 1, 0, 3, Q("13.18 mm")))
sketch22.addConstraint(Sketcher.Constraint("DistanceY", -1, 1, 0, 3, Q("0.085526 mm")))
pad21 = body20.newObject("PartDesign::Pad", "Pad020")
pad21.Profile = sketch22
pad21.Length = 1
pad21.Reversed = True
body21 = doc.addObject("PartDesign::Body", "Body020")

# Sketch on XY plane
sketch23 = body21.newObject("Sketcher::SketchObject", "Sketch022")
sketch23.AttachmentSupport = (doc.getObject("XY_Plane020"), [""])
sketch23.MapMode = "FlatFace"
sketch23.addGeometry(Part.Circle(V(-4.8, -11.3, 0), V(0, 0, 1), 0.5), False)
sketch23.addConstraint(Sketcher.Constraint("Diameter", 0, Q("1.01 mm")))
sketch23.addConstraint(Sketcher.Constraint("DistanceX", 0, 3, -1, 1, Q("4.834476 mm")))
sketch23.addConstraint(Sketcher.Constraint("DistanceY", 0, 3, -1, 1, Q("11.324983 mm")))
pad22 = body21.newObject("PartDesign::Pad", "Pad021")
pad22.Profile = sketch23
pad22.Length = 1
pad22.Reversed = True
body22 = doc.addObject("PartDesign::Body", "Body021")

# Sketch on XY plane
sketch24 = body22.newObject("Sketcher::SketchObject", "Sketch023")
sketch24.AttachmentSupport = (doc.getObject("XY_Plane021"), [""])
sketch24.MapMode = "FlatFace"
sketch24.addGeometry(Part.Circle(V(5.4, -11.3, 0), V(0, 0, 1), 0.5), False)
sketch24.addConstraint(Sketcher.Constraint("Diameter", 0, Q("1.01 mm")))
sketch24.addConstraint(Sketcher.Constraint("DistanceX", -1, 1, 0, 3, Q("5.369454 mm")))
sketch24.addConstraint(Sketcher.Constraint("DistanceY", 0, 3, -1, 1, Q("11.324983 mm")))
pad23 = body22.newObject("PartDesign::Pad", "Pad022")
pad23.Profile = sketch24
pad23.Length = 1
pad23.Reversed = True

doc.recompute()
